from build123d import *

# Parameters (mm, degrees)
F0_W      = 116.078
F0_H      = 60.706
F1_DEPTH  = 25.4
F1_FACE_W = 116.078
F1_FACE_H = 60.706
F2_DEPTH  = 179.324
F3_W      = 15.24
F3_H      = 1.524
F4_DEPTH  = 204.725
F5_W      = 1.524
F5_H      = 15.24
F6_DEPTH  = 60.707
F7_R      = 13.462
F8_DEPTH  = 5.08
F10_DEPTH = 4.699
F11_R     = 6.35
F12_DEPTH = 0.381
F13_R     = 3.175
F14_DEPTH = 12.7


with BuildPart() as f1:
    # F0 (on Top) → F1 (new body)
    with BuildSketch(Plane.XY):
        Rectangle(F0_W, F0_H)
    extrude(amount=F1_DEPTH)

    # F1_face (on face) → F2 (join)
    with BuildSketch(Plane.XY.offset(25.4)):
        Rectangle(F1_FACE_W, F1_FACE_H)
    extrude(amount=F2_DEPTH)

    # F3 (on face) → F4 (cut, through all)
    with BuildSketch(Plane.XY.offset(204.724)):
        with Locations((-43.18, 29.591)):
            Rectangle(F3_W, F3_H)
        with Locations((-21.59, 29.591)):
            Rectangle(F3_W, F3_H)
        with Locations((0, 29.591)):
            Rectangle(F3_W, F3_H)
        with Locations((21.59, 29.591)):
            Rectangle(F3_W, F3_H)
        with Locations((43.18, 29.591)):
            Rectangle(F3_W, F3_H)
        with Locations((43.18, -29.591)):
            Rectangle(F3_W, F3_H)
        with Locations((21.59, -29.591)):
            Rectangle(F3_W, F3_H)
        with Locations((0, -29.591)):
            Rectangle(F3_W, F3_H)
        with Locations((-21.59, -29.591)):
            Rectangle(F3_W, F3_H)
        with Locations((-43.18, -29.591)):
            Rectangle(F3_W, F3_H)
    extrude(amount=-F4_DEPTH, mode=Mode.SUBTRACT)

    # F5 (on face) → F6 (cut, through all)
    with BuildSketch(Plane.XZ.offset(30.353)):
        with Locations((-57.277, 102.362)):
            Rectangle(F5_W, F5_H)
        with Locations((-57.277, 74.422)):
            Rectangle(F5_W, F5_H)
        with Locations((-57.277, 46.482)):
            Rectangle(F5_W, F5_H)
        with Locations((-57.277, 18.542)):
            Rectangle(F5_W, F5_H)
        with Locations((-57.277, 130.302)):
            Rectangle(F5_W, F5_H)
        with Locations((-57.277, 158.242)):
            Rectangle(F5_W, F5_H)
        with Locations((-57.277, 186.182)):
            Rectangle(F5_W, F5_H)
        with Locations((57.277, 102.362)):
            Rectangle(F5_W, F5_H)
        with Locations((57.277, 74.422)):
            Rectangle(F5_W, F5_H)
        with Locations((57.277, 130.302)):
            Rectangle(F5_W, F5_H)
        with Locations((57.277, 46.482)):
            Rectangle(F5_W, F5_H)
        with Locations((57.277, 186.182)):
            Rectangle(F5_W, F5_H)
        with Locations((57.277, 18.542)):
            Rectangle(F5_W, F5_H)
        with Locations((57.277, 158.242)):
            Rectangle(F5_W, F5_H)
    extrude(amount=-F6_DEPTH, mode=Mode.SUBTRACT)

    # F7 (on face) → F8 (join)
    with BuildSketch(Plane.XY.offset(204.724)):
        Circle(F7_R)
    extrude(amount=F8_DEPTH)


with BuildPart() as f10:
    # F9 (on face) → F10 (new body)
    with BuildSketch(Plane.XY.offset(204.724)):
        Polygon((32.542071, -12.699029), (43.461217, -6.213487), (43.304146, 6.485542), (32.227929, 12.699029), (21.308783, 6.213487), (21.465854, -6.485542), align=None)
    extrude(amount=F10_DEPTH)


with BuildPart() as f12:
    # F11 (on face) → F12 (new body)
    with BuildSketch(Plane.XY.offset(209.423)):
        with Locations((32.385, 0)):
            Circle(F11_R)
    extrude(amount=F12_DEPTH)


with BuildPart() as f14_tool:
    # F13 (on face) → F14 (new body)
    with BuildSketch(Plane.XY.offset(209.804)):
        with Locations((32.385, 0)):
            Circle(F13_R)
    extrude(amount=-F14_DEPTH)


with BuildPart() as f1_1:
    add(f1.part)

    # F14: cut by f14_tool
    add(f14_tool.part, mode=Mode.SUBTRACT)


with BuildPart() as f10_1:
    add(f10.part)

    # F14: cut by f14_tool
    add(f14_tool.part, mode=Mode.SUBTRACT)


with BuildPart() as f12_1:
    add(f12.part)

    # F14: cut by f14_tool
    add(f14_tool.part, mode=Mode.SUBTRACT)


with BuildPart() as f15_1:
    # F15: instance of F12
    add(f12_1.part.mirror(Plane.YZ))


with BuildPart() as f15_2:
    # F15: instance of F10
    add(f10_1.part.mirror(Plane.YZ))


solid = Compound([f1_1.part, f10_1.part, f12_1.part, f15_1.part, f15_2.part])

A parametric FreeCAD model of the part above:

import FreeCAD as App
import Part
import Sketcher
Q = App.Units.Quantity

doc = App.newDocument("Part")
body = doc.addObject("PartDesign::Body", "Body")

sketch1 = body.newObject("Sketcher::SketchObject", "Sketch")
sketch1.AttachmentSupport = (doc.getObject("XY_Plane"), [""])
sketch1.MapMode = "FlatFace"
sketch1.addGeometry(Part.LineSegment(App.Vector(-58, 30, 0), App.Vector(-58, -30, 0)), False)
sketch1.addGeometry(Part.LineSegment(App.Vector(-58, -30, 0), App.Vector(58, -30, 0)), False)
sketch1.addGeometry(Part.LineSegment(App.Vector(58, -30, 0), App.Vector(58, 30, 0)), False)
sketch1.addGeometry(Part.LineSegment(App.Vector(58, 30, 0), App.Vector(-58, 30, 0)), False)
sketch1.addConstraint(Sketcher.Constraint("Coincident", 0, 2, 1, 1))
sketch1.addConstraint(Sketcher.Constraint("Coincident", 1, 2, 2, 1))
sketch1.addConstraint(Sketcher.Constraint("Coincident", 2, 2, 3, 1))
sketch1.addConstraint(Sketcher.Constraint("Coincident", 3, 2, 0, 1))
sketch1.addConstraint(Sketcher.Constraint("Vertical", 0))
sketch1.addConstraint(Sketcher.Constraint("Horizontal", 1))
sketch1.addConstraint(Sketcher.Constraint("Vertical", 2))
sketch1.addConstraint(Sketcher.Constraint("Horizontal", 3))
sketch1.addConstraint(Sketcher.Constraint("Symmetric", 0, 2, 2, 2, -1, 1))
sketch1.addConstraint(Sketcher.Constraint("DistanceX", 1, 1, 1, 2, Q("4.57 in")))
sketch1.addConstraint(Sketcher.Constraint("DistanceY", 0, 2, 0, 1, Q("2.39 in")))
pad1 = body.newObject("PartDesign::Pad", "Pad")
pad1.Profile = sketch1
pad1.Length = Q("1 in")

sketch2 = body.newObject("Sketcher::SketchObject", "Sketch001")
sketch2.AttachmentSupport = (doc.getObject("XY_Plane"), [""])
sketch2.MapMode = "FlatFace"
sketch2.AttachmentOffset = App.Placement(App.Vector(0, 0, 1 * 25.4), App.Rotation())
sketch2.addGeometry(Part.LineSegment(App.Vector(-58, 30, 0), App.Vector(-58, -30, 0)), False)
sketch2.addGeometry(Part.LineSegment(App.Vector(-58, -30, 0), App.Vector(58, -30, 0)), False)
sketch2.addGeometry(Part.LineSegment(App.Vector(58, -30, 0), App.Vector(58, 30, 0)), False)
sketch2.addGeometry(Part.LineSegment(App.Vector(58, 30, 0), App.Vector(-58, 30, 0)), False)
sketch2.addConstraint(Sketcher.Constraint("Coincident", 0, 2, 1, 1))
sketch2.addConstraint(Sketcher.Constraint("Coincident", 1, 2, 2, 1))
sketch2.addConstraint(Sketcher.Constraint("Coincident", 2, 2, 3, 1))
sketch2.addConstraint(Sketcher.Constraint("Coincident", 3, 2, 0, 1))
sketch2.addConstraint(Sketcher.Constraint("Vertical", 0))
sketch2.addConstraint(Sketcher.Constraint("Horizontal", 1))
sketch2.addConstraint(Sketcher.Constraint("Vertical", 2))
sketch2.addConstraint(Sketcher.Constraint("Horizontal", 3))
sketch2.addConstraint(Sketcher.Constraint("Symmetric", 0, 2, 2, 2, -1, 1))
sketch2.addConstraint(Sketcher.Constraint("DistanceX", 1, 1, 1, 2, Q("4.57 in")))
sketch2.addConstraint(Sketcher.Constraint("DistanceY", 0, 2, 0, 1, Q("2.39 in")))
pad2 = body.newObject("PartDesign::Pad", "Pad001")
pad2.Profile = sketch2
pad2.Length = Q("7.06 in")

sketch3 = body.newObject("Sketcher::SketchObject", "Sketch002")
sketch3.AttachmentSupport = (doc.getObject("XY_Plane"), [""])
sketch3.MapMode = "FlatFace"
sketch3.AttachmentOffset = App.Placement(App.Vector(0, 0, 8.06 * 25.4), App.Rotation())
sketch3.addGeometry(Part.LineSegment(App.Vector(-50.8, 30.4, 0), App.Vector(-50.8, 28.8, 0)), False)
sketch3.addGeometry(Part.LineSegment(App.Vector(-50.8, 28.8, 0), App.Vector(-35.6, 28.8, 0)), False)
sketch3.addGeometry(Part.LineSegment(App.Vector(-35.6, 28.8, 0), App.Vector(-35.6, 30.4, 0)), False)
sketch3.addGeometry(Part.LineSegment(App.Vector(-35.6, 30.4, 0), App.Vector(-50.8, 30.4, 0)), False)
sketch3.addGeometry(Part.LineSegment(App.Vector(-29.2, 30.4, 0), App.Vector(-29.2, 28.8, 0)), False)
sketch3.addGeometry(Part.LineSegment(App.Vector(-29.2, 28.8, 0), App.Vector(-14, 28.8, 0)), False)
sketch3.addGeometry(Part.LineSegment(App.Vector(-14, 28.8, 0), App.Vector(-14, 30.4, 0)), False)
sketch3.addGeometry(Part.LineSegment(App.Vector(-14, 30.4, 0), App.Vector(-29.2, 30.4, 0)), False)
sketch3.addGeometry(Part.LineSegment(App.Vector(-7.6, 30.4, 0), App.Vector(-7.6, 28.8, 0)), False)
sketch3.addGeometry(Part.LineSegment(App.Vector(-7.6, 28.8, 0), App.Vector(7.6, 28.8, 0)), False)
sketch3.addGeometry(Part.LineSegment(App.Vector(7.6, 28.8, 0), App.Vector(7.6, 30.4, 0)), False)
sketch3.addGeometry(Part.LineSegment(App.Vector(7.6, 30.4, 0), App.Vector(-7.6, 30.4, 0)), False)
sketch3.addGeometry(Part.LineSegment(App.Vector(14, 30.4, 0), App.Vector(14, 28.8, 0)), False)
sketch3.addGeometry(Part.LineSegment(App.Vector(14, 28.8, 0), App.Vector(29.2, 28.8, 0)), False)
sketch3.addGeometry(Part.LineSegment(App.Vector(29.2, 28.8, 0), App.Vector(29.2, 30.4, 0)), False)
sketch3.addGeometry(Part.LineSegment(App.Vector(29.2, 30.4, 0), App.Vector(14, 30.4, 0)), False)
sketch3.addGeometry(Part.LineSegment(App.Vector(35.6, 30.4, 0), App.Vector(35.6, 28.8, 0)), False)
sketch3.addGeometry(Part.LineSegment(App.Vector(35.6, 28.8, 0), App.Vector(50.8, 28.8, 0)), False)
sketch3.addGeometry(Part.LineSegment(App.Vector(50.8, 28.8, 0), App.Vector(50.8, 30.4, 0)), False)
sketch3.addGeometry(Part.LineSegment(App.Vector(50.8, 30.4, 0), App.Vector(35.6, 30.4, 0)), False)
sketch3.addGeometry(Part.LineSegment(App.Vector(35.6, -28.8, 0), App.Vector(35.6, -30.4, 0)), False)
sketch3.addGeometry(Part.LineSegment(App.Vector(35.6, -30.4, 0), App.Vector(50.8, -30.4, 0)), False)
sketch3.addGeometry(Part.LineSegment(App.Vector(50.8, -30.4, 0), App.Vector(50.8, -28.8, 0)), False)
sketch3.addGeometry(Part.LineSegment(App.Vector(50.8, -28.8, 0), App.Vector(35.6, -28.8, 0)), False)
sketch3.addGeometry(Part.LineSegment(App.Vector(14, -28.8, 0), App.Vector(14, -30.4, 0)), False)
sketch3.addGeometry(Part.LineSegment(App.Vector(14, -30.4, 0), App.Vector(29.2, -30.4, 0)), False)
sketch3.addGeometry(Part.LineSegment(App.Vector(29.2, -30.4, 0), App.Vector(29.2, -28.8, 0)), False)
sketch3.addGeometry(Part.LineSegment(App.Vector(29.2, -28.8, 0), App.Vector(14, -28.8, 0)), False)
sketch3.addGeometry(Part.LineSegment(App.Vector(-7.6, -28.8, 0), App.Vector(-7.6, -30.4, 0)), False)
sketch3.addGeometry(Part.LineSegment(App.Vector(-7.6, -30.4, 0), App.Vector(7.6, -30.4, 0)), False)
sketch3.addGeometry(Part.LineSegment(App.Vector(7.6, -30.4, 0), App.Vector(7.6, -28.8, 0)), False)
sketch3.addGeometry(Part.LineSegment(App.Vector(7.6, -28.8, 0), App.Vector(-7.6, -28.8, 0)), False)
sketch3.addGeometry(Part.LineSegment(App.Vector(-29.2, -28.8, 0), App.Vector(-29.2, -30.4, 0)), False)
sketch3.addGeometry(Part.LineSegment(App.Vector(-29.2, -30.4, 0), App.Vector(-14, -30.4, 0)), False)
sketch3.addGeometry(Part.LineSegment(App.Vector(-14, -30.4, 0), App.Vector(-14, -28.8, 0)), False)
sketch3.addGeometry(Part.LineSegment(App.Vector(-14, -28.8, 0), App.Vector(-29.2, -28.8, 0)), False)
sketch3.addGeometry(Part.LineSegment(App.Vector(-50.8, -28.8, 0), App.Vector(-50.8, -30.4, 0)), False)
sketch3.addGeometry(Part.LineSegment(App.Vector(-50.8, -30.4, 0), App.Vector(-35.6, -30.4, 0)), False)
sketch3.addGeometry(Part.LineSegment(App.Vector(-35.6, -30.4, 0), App.Vector(-35.6, -28.8, 0)), False)
sketch3.addGeometry(Part.LineSegment(App.Vector(-35.6, -28.8, 0), App.Vector(-50.8, -28.8, 0)), False)
sketch3.addConstraint(Sketcher.Constraint("Coincident", 0, 2, 1, 1))
sketch3.addConstraint(Sketcher.Constraint("Coincident", 1, 2, 2, 1))
sketch3.addConstraint(Sketcher.Constraint("Coincident", 2, 2, 3, 1))
sketch3.addConstraint(Sketcher.Constraint("Coincident", 3, 2, 0, 1))
sketch3.addConstraint(Sketcher.Constraint("Coincident", 4, 2, 5, 1))
sketch3.addConstraint(Sketcher.Constraint("Coincident", 5, 2, 6, 1))
sketch3.addConstraint(Sketcher.Constraint("Coincident", 6, 2, 7, 1))
sketch3.addConstraint(Sketcher.Constraint("Coincident", 7, 2, 4, 1))
sketch3.addConstraint(Sketcher.Constraint("Coincident", 8, 2, 9, 1))
sketch3.addConstraint(Sketcher.Constraint("Coincident", 9, 2, 10, 1))
sketch3.addConstraint(Sketcher.Constraint("Coincident", 10, 2, 11, 1))
sketch3.addConstraint(Sketcher.Constraint("Coincident", 11, 2, 8, 1))
sketch3.addConstraint(Sketcher.Constraint("Coincident", 12, 2, 13, 1))
sketch3.addConstraint(Sketcher.Constraint("Coincident", 13, 2, 14, 1))
sketch3.addConstraint(Sketcher.Constraint("Coincident", 14, 2, 15, 1))
sketch3.addConstraint(Sketcher.Constraint("Coincident", 15, 2, 12, 1))
sketch3.addConstraint(Sketcher.Constraint("Coincident", 16, 2, 17, 1))
sketch3.addConstraint(Sketcher.Constraint("Coincident", 17, 2, 18, 1))
sketch3.addConstraint(Sketcher.Constraint("Coincident", 18, 2, 19, 1))
sketch3.addConstraint(Sketcher.Constraint("Coincident", 19, 2, 16, 1))
sketch3.addConstraint(Sketcher.Constraint("Coincident", 20, 2, 21, 1))
sketch3.addConstraint(Sketcher.Constraint("Coincident", 21, 2, 22, 1))
sketch3.addConstraint(Sketcher.Constraint("Coincident", 22, 2, 23, 1))
sketch3.addConstraint(Sketcher.Constraint("Coincident", 23, 2, 20, 1))
sketch3.addConstraint(Sketcher.Constraint("Coincident", 24, 2, 25, 1))
sketch3.addConstraint(Sketcher.Constraint("Coincident", 25, 2, 26, 1))
sketch3.addConstraint(Sketcher.Constraint("Coincident", 26, 2, 27, 1))
sketch3.addConstraint(Sketcher.Constraint("Coincident", 27, 2, 24, 1))
sketch3.addConstraint(Sketcher.Constraint("Coincident", 28, 2, 29, 1))
sketch3.addConstraint(Sketcher.Constraint("Coincident", 29, 2, 30, 1))
sketch3.addConstraint(Sketcher.Constraint("Coincident", 30, 2, 31, 1))
sketch3.addConstraint(Sketcher.Constraint("Coincident", 31, 2, 28, 1))
sketch3.addConstraint(Sketcher.Constraint("Coincident", 32, 2, 33, 1))
sketch3.addConstraint(Sketcher.Constraint("Coincident", 33, 2, 34, 1))
sketch3.addConstraint(Sketcher.Constraint("Coincident", 34, 2, 35, 1))
sketch3.addConstraint(Sketcher.Constraint("Coincident", 35, 2, 32, 1))
sketch3.addConstraint(Sketcher.Constraint("Coincident", 36, 2, 37, 1))
sketch3.addConstraint(Sketcher.Constraint("Coincident", 37, 2, 38, 1))
sketch3.addConstraint(Sketcher.Constraint("Coincident", 38, 2, 39, 1))
sketch3.addConstraint(Sketcher.Constraint("Coincident", 39, 2, 36, 1))
sketch3.addConstraint(Sketcher.Constraint("Vertical", 0))
sketch3.addConstraint(Sketcher.Constraint("Horizontal", 1))
sketch3.addConstraint(Sketcher.Constraint("Vertical", 2))
sketch3.addConstraint(Sketcher.Constraint("Horizontal", 3))
sketch3.addConstraint(Sketcher.Constraint("Vertical", 4))
sketch3.addConstraint(Sketcher.Constraint("Horizontal", 5))
sketch3.addConstraint(Sketcher.Constraint("Vertical", 6))
sketch3.addConstraint(Sketcher.Constraint("Horizontal", 7))
sketch3.addConstraint(Sketcher.Constraint("Vertical", 8))
sketch3.addConstraint(Sketcher.Constraint("Horizontal", 9))
sketch3.addConstraint(Sketcher.Constraint("Vertical", 10))
sketch3.addConstraint(Sketcher.Constraint("Horizontal", 11))
sketch3.addConstraint(Sketcher.Constraint("Vertical", 12))
sketch3.addConstraint(Sketcher.Constraint("Horizontal", 13))
sketch3.addConstraint(Sketcher.Constraint("Vertical", 14))
sketch3.addConstraint(Sketcher.Constraint("Horizontal", 15))
sketch3.addConstraint(Sketcher.Constraint("Vertical", 16))
sketch3.addConstraint(Sketcher.Constraint("Horizontal", 17))
sketch3.addConstraint(Sketcher.Constraint("Vertical", 18))
sketch3.addConstraint(Sketcher.Constraint("Horizontal", 19))
sketch3.addConstraint(Sketcher.Constraint("Vertical", 20))
sketch3.addConstraint(Sketcher.Constraint("Horizontal", 21))
sketch3.addConstraint(Sketcher.Constraint("Vertical", 22))
sketch3.addConstraint(Sketcher.Constraint("Horizontal", 23))
sketch3.addConstraint(Sketcher.Constraint("Vertical", 24))
sketch3.addConstraint(Sketcher.Constraint("Horizontal", 25))
sketch3.addConstraint(Sketcher.Constraint("Vertical", 26))
sketch3.addConstraint(Sketcher.Constraint("Horizontal", 27))
sketch3.addConstraint(Sketcher.Constraint("Vertical", 28))
sketch3.addConstraint(Sketcher.Constraint("Horizontal", 29))
sketch3.addConstraint(Sketcher.Constraint("Vertical", 30))
sketch3.addConstraint(Sketcher.Constraint("Horizontal", 31))
sketch3.addConstraint(Sketcher.Constraint("Vertical", 32))
sketch3.addConstraint(Sketcher.Constraint("Horizontal", 33))
sketch3.addConstraint(Sketcher.Constraint("Vertical", 34))
sketch3.addConstraint(Sketcher.Constraint("Horizontal", 35))
sketch3.addConstraint(Sketcher.Constraint("Vertical", 36))
sketch3.addConstraint(Sketcher.Constraint("Horizontal", 37))
sketch3.addConstraint(Sketcher.Constraint("Vertical", 38))
sketch3.addConstraint(Sketcher.Constraint("Horizontal", 39))
sketch3.addConstraint(Sketcher.Constraint("Symmetric", 2, 2, 20, 2, -1, 1))
sketch3.addConstraint(Sketcher.Constraint("Symmetric", 0, 2, 22, 2, -1, 1))
sketch3.addConstraint(Sketcher.Constraint("Symmetric", 6, 2, 24, 2, -1, 1))
sketch3.addConstraint(Sketcher.Constraint("Symmetric", 4, 2, 26, 2, -1, 1))
sketch3.addConstraint(Sketcher.Constraint("Symmetric", 10, 2, 28, 2, -1, 1))
sketch3.addConstraint(Sketcher.Constraint("Symmetric", 8, 2, 30, 2, -1, 1))
sketch3.addConstraint(Sketcher.Constraint("Symmetric", 14, 2, 32, 2, -1, 1))
sketch3.addConstraint(Sketcher.Constraint("Symmetric", 12, 2, 34, 2, -1, 1))
sketch3.addConstraint(Sketcher.Constraint("Symmetric", 18, 2, 36, 2, -1, 1))
sketch3.addConstraint(Sketcher.Constraint("Symmetric", 16, 2, 38, 2, -1, 1))
sketch3.addConstraint(Sketcher.Constraint("Symmetric", 5, 2, 12, 2, -2))
sketch3.addConstraint(Sketcher.Constraint("Symmetric", 7, 2, 14, 2, -2))
sketch3.addConstraint(Sketcher.Constraint("Symmetric", 1, 2, 16, 2, -2))
sketch3.addConstraint(Sketcher.Constraint("Symmetric", 3, 2, 18, 2, -2))
sketch3.addConstraint(Sketcher.Constraint("Horizontal", 1, 2, 4, 2))
sketch3.addConstraint(Sketcher.Constraint("Horizontal", 3, 2, 6, 2))
sketch3.addConstraint(Sketcher.Constraint("Horizontal", 5, 2, 8, 2))
sketch3.addConstraint(Sketcher.Constraint("Horizontal", 7, 2, 10, 2))
sketch3.addConstraint(Sketcher.Constraint("Vertical", 11, 2, 28, 2))
sketch3.addConstraint(Sketcher.Constraint("Equal", 3, 5))
sketch3.addConstraint(Sketcher.Constraint("Equal", 7, 9))
sketch3.addConstraint(Sketcher.Constraint("DistanceX", 1, 1, 1, 2, Q("0.6 in")))
sketch3.addConstraint(Sketcher.Constraint("DistanceX", 0, 2, -1, 1, Q("2 in")))
sketch3.addConstraint(Sketcher.Constraint("DistanceY", 0, 2, 0, 1, Q("0.06 in")))
sketch3.addConstraint(Sketcher.Constraint("DistanceX", 5, 2, 12, 2, Q("1.1 in")))
sketch3.addConstraint(Sketcher.Constraint("DistanceY", 20, 2, 16, 2, Q("2.33 in")))
pocket1 = body.newObject("PartDesign::Pocket", "Pocket")
pocket1.Profile = sketch3
pocket1.Type = "ThroughAll"

sketch4 = body.newObject("Sketcher::SketchObject", "Sketch003")
sketch4.AttachmentSupport = (doc.getObject("XZ_Plane"), [""])
sketch4.MapMode = "FlatFace"
sketch4.AttachmentOffset = App.Placement(App.Vector(0, 0, 1.195 * 25.4), App.Rotation())
sketch4.addGeometry(Part.LineSegment(App.Vector(-58, 110, 0), App.Vector(-58, 94.7, 0)), False)
sketch4.addGeometry(Part.LineSegment(App.Vector(-58, 94.7, 0), App.Vector(-56.5, 94.7, 0)), False)
sketch4.addGeometry(Part.LineSegment(App.Vector(-56.5, 94.7, 0), App.Vector(-56.5, 110, 0)), False)
sketch4.addGeometry(Part.LineSegment(App.Vector(-56.5, 110, 0), App.Vector(-58, 110, 0)), False)
sketch4.addGeometry(Part.LineSegment(App.Vector(-58, 82, 0), App.Vector(-58, 66.8, 0)), False)
sketch4.addGeometry(Part.LineSegment(App.Vector(-58, 66.8, 0), App.Vector(-56.5, 66.8, 0)), False)
sketch4.addGeometry(Part.LineSegment(App.Vector(-56.5, 66.8, 0), App.Vector(-56.5, 82, 0)), False)
sketch4.addGeometry(Part.LineSegment(App.Vector(-56.5, 82, 0), App.Vector(-58, 82, 0)), False)
sketch4.addGeometry(Part.LineSegment(App.Vector(-58, 54.1, 0), App.Vector(-58, 38.9, 0)), False)
sketch4.addGeometry(Part.LineSegment(App.Vector(-58, 38.9, 0), App.Vector(-56.5, 38.9, 0)), False)
sketch4.addGeometry(Part.LineSegment(App.Vector(-56.5, 38.9, 0), App.Vector(-56.5, 54.1, 0)), False)
sketch4.addGeometry(Part.LineSegment(App.Vector(-56.5, 54.1, 0), App.Vector(-58, 54.1, 0)), False)
sketch4.addGeometry(Part.LineSegment(App.Vector(-58, 26.2, 0), App.Vector(-58, 10.9, 0)), False)
sketch4.addGeometry(Part.LineSegment(App.Vector(-58, 10.9, 0), App.Vector(-56.5, 10.9, 0)), False)
sketch4.addGeometry(Part.LineSegment(App.Vector(-56.5, 10.9, 0), App.Vector(-56.5, 26.2, 0)), False)
sketch4.addGeometry(Part.LineSegment(App.Vector(-56.5, 26.2, 0), App.Vector(-58, 26.2, 0)), False)
sketch4.addGeometry(Part.LineSegment(App.Vector(-58, 137.9, 0), App.Vector(-58, 122.7, 0)), False)
sketch4.addGeometry(Part.LineSegment(App.Vector(-58, 122.7, 0), App.Vector(-56.5, 122.7, 0)), False)
sketch4.addGeometry(Part.LineSegment(App.Vector(-56.5, 122.7, 0), App.Vector(-56.5, 137.9, 0)), False)
sketch4.addGeometry(Part.LineSegment(App.Vector(-56.5, 137.9, 0), App.Vector(-58, 137.9, 0)), False)
sketch4.addGeometry(Part.LineSegment(App.Vector(-58, 165.9, 0), App.Vector(-58, 150.6, 0)), False)
sketch4.addGeometry(Part.LineSegment(App.Vector(-58, 150.6, 0), App.Vector(-56.5, 150.6, 0)), False)
sketch4.addGeometry(Part.LineSegment(App.Vector(-56.5, 150.6, 0), App.Vector(-56.5, 165.9, 0)), False)
sketch4.addGeometry(Part.LineSegment(App.Vector(-56.5, 165.9, 0), App.Vector(-58, 165.9, 0)), False)
sketch4.addGeometry(Part.LineSegment(App.Vector(-58, 193.8, 0), App.Vector(-58, 178.6, 0)), False)
sketch4.addGeometry(Part.LineSegment(App.Vector(-58, 178.6, 0), App.Vector(-56.5, 178.6, 0)), False)
sketch4.addGeometry(Part.LineSegment(App.Vector(-56.5, 178.6, 0), App.Vector(-56.5, 193.8, 0)), False)
sketch4.addGeometry(Part.LineSegment(App.Vector(-56.5, 193.8, 0), App.Vector(-58, 193.8, 0)), False)
sketch4.addGeometry(Part.LineSegment(App.Vector(56.5, 110, 0), App.Vector(56.5, 94.7, 0)), False)
sketch4.addGeometry(Part.LineSegment(App.Vector(56.5, 94.7, 0), App.Vector(58, 94.7, 0)), False)
sketch4.addGeometry(Part.LineSegment(App.Vector(58, 94.7, 0), App.Vector(58, 110, 0)), False)
sketch4.addGeometry(Part.LineSegment(App.Vector(58, 110, 0), App.Vector(56.5, 110, 0)), False)
sketch4.addGeometry(Part.LineSegment(App.Vector(56.5, 82, 0), App.Vector(56.5, 66.8, 0)), False)
sketch4.addGeometry(Part.LineSegment(App.Vector(56.5, 66.8, 0), App.Vector(58, 66.8, 0)), False)
sketch4.addGeometry(Part.LineSegment(App.Vector(58, 66.8, 0), App.Vector(58, 82, 0)), False)
sketch4.addGeometry(Part.LineSegment(App.Vector(58, 82, 0), App.Vector(56.5, 82, 0)), False)
sketch4.addGeometry(Part.LineSegment(App.Vector(56.5, 137.9, 0), App.Vector(56.5, 122.7, 0)), False)
sketch4.addGeometry(Part.LineSegment(App.Vector(56.5, 122.7, 0), App.Vector(58, 122.7, 0)), False)
sketch4.addGeometry(Part.LineSegment(App.Vector(58, 122.7, 0), App.Vector(58, 137.9, 0)), False)
sketch4.addGeometry(Part.LineSegment(App.Vector(58, 137.9, 0), App.Vector(56.5, 137.9, 0)), False)
sketch4.addGeometry(Part.LineSegment(App.Vector(56.5, 54.1, 0), App.Vector(56.5, 38.9, 0)), False)
sketch4.addGeometry(Part.LineSegment(App.Vector(56.5, 38.9, 0), App.Vector(58, 38.9, 0)), False)
sketch4.addGeometry(Part.LineSegment(App.Vector(58, 38.9, 0), App.Vector(58, 54.1, 0)), False)
sketch4.addGeometry(Part.LineSegment(App.Vector(58, 54.1, 0), App.Vector(56.5, 54.1, 0)), False)
sketch4.addGeometry(Part.LineSegment(App.Vector(56.5, 193.8, 0), App.Vector(56.5, 178.6, 0)), False)
sketch4.addGeometry(Part.LineSegment(App.Vector(56.5, 178.6, 0), App.Vector(58, 178.6, 0)), False)
sketch4.addGeometry(Part.LineSegment(App.Vector(58, 178.6, 0), App.Vector(58, 193.8, 0)), False)
sketch4.addGeometry(Part.LineSegment(App.Vector(58, 193.8, 0), App.Vector(56.5, 193.8, 0)), False)
sketch4.addGeometry(Part.LineSegment(App.Vector(56.5, 26.2, 0), App.Vector(56.5, 10.9, 0)), False)
sketch4.addGeometry(Part.LineSegment(App.Vector(56.5, 10.9, 0), App.Vector(58, 10.9, 0)), False)
sketch4.addGeometry(Part.LineSegment(App.Vector(58, 10.9, 0), App.Vector(58, 26.2, 0)), False)
sketch4.addGeometry(Part.LineSegment(App.Vector(58, 26.2, 0), App.Vector(56.5, 26.2, 0)), False)
sketch4.addGeometry(Part.LineSegment(App.Vector(56.5, 165.9, 0), App.Vector(56.5, 150.6, 0)), False)
sketch4.addGeometry(Part.LineSegment(App.Vector(56.5, 150.6, 0), App.Vector(58, 150.6, 0)), False)
sketch4.addGeometry(Part.LineSegment(App.Vector(58, 150.6, 0), App.Vector(58, 165.9, 0)), False)
sketch4.addGeometry(Part.LineSegment(App.Vector(58, 165.9, 0), App.Vector(56.5, 165.9, 0)), False)
sketch4.addConstraint(Sketcher.Constraint("Coincident", 0, 2, 1, 1))
sketch4.addConstraint(Sketcher.Constraint("Coincident", 1, 2, 2, 1))
sketch4.addConstraint(Sketcher.Constraint("Coincident", 2, 2, 3, 1))
sketch4.addConstraint(Sketcher.Constraint("Coincident", 3, 2, 0, 1))
sketch4.addConstraint(Sketcher.Constraint("Coincident", 4, 2, 5, 1))
sketch4.addConstraint(Sketcher.Constraint("Coincident", 5, 2, 6, 1))
sketch4.addConstraint(Sketcher.Constraint("Coincident", 6, 2, 7, 1))
sketch4.addConstraint(Sketcher.Constraint("Coincident", 7, 2, 4, 1))
sketch4.addConstraint(Sketcher.Constraint("Coincident", 8, 2, 9, 1))
sketch4.addConstraint(Sketcher.Constraint("Coincident", 9, 2, 10, 1))
sketch4.addConstraint(Sketcher.Constraint("Coincident", 10, 2, 11, 1))
sketch4.addConstraint(Sketcher.Constraint("Coincident", 11, 2, 8, 1))
sketch4.addConstraint(Sketcher.Constraint("Coincident", 12, 2, 13, 1))
sketch4.addConstraint(Sketcher.Constraint("Coincident", 13, 2, 14, 1))
sketch4.addConstraint(Sketcher.Constraint("Coincident", 14, 2, 15, 1))
sketch4.addConstraint(Sketcher.Constraint("Coincident", 15, 2, 12, 1))
sketch4.addConstraint(Sketcher.Constraint("Coincident", 16, 2, 17, 1))
sketch4.addConstraint(Sketcher.Constraint("Coincident", 17, 2, 18, 1))
sketch4.addConstraint(Sketcher.Constraint("Coincident", 18, 2, 19, 1))
sketch4.addConstraint(Sketcher.Constraint("Coincident", 19, 2, 16, 1))
sketch4.addConstraint(Sketcher.Constraint("Coincident", 20, 2, 21, 1))
sketch4.addConstraint(Sketcher.Constraint("Coincident", 21, 2, 22, 1))
sketch4.addConstraint(Sketcher.Constraint("Coincident", 22, 2, 23, 1))
sketch4.addConstraint(Sketcher.Constraint("Coincident", 23, 2, 20, 1))
sketch4.addConstraint(Sketcher.Constraint("Coincident", 24, 2, 25, 1))
sketch4.addConstraint(Sketcher.Constraint("Coincident", 25, 2, 26, 1))
sketch4.addConstraint(Sketcher.Constraint("Coincident", 26, 2, 27, 1))
sketch4.addConstraint(Sketcher.Constraint("Coincident", 27, 2, 24, 1))
sketch4.addConstraint(Sketcher.Constraint("Coincident", 28, 2, 29, 1))
sketch4.addConstraint(Sketcher.Constraint("Coincident", 29, 2, 30, 1))
sketch4.addConstraint(Sketcher.Constraint("Coincident", 30, 2, 31, 1))
sketch4.addConstraint(Sketcher.Constraint("Coincident", 31, 2, 28, 1))
sketch4.addConstraint(Sketcher.Constraint("Coincident", 32, 2, 33, 1))
sketch4.addConstraint(Sketcher.Constraint("Coincident", 33, 2, 34, 1))
sketch4.addConstraint(Sketcher.Constraint("Coincident", 34, 2, 35, 1))
sketch4.addConstraint(Sketcher.Constraint("Coincident", 35, 2, 32, 1))
sketch4.addConstraint(Sketcher.Constraint("Coincident", 36, 2, 37, 1))
sketch4.addConstraint(Sketcher.Constraint("Coincident", 37, 2, 38, 1))
sketch4.addConstraint(Sketcher.Constraint("Coincident", 38, 2, 39, 1))
sketch4.addConstraint(Sketcher.Constraint("Coincident", 39, 2, 36, 1))
sketch4.addConstraint(Sketcher.Constraint("Coincident", 40, 2, 41, 1))
sketch4.addConstraint(Sketcher.Constraint("Coincident", 41, 2, 42, 1))
sketch4.addConstraint(Sketcher.Constraint("Coincident", 42, 2, 43, 1))
sketch4.addConstraint(Sketcher.Constraint("Coincident", 43, 2, 40, 1))
sketch4.addConstraint(Sketcher.Constraint("Coincident", 44, 2, 45, 1))
sketch4.addConstraint(Sketcher.Constraint("Coincident", 45, 2, 46, 1))
sketch4.addConstraint(Sketcher.Constraint("Coincident", 46, 2, 47, 1))
sketch4.addConstraint(Sketcher.Constraint("Coincident", 47, 2, 44, 1))
sketch4.addConstraint(Sketcher.Constraint("Coincident", 48, 2, 49, 1))
sketch4.addConstraint(Sketcher.Constraint("Coincident", 49, 2, 50, 1))
sketch4.addConstraint(Sketcher.Constraint("Coincident", 50, 2, 51, 1))
sketch4.addConstraint(Sketcher.Constraint("Coincident", 51, 2, 48, 1))
sketch4.addConstraint(Sketcher.Constraint("Coincident", 52, 2, 53, 1))
sketch4.addConstraint(Sketcher.Constraint("Coincident", 53, 2, 54, 1))
sketch4.addConstraint(Sketcher.Constraint("Coincident", 54, 2, 55, 1))
sketch4.addConstraint(Sketcher.Constraint("Coincident", 55, 2, 52, 1))
sketch4.addConstraint(Sketcher.Constraint("Vertical", 0))
sketch4.addConstraint(Sketcher.Constraint("Horizontal", 1))
sketch4.addConstraint(Sketcher.Constraint("Vertical", 2))
sketch4.addConstraint(Sketcher.Constraint("Horizontal", 3))
sketch4.addConstraint(Sketcher.Constraint("Vertical", 4))
sketch4.addConstraint(Sketcher.Constraint("Horizontal", 5))
sketch4.addConstraint(Sketcher.Constraint("Vertical", 6))
sketch4.addConstraint(Sketcher.Constraint("Horizontal", 7))
sketch4.addConstraint(Sketcher.Constraint("Vertical", 8))
sketch4.addConstraint(Sketcher.Constraint("Horizontal", 9))
sketch4.addConstraint(Sketcher.Constraint("Vertical", 10))
sketch4.addConstraint(Sketcher.Constraint("Horizontal", 11))
sketch4.addConstraint(Sketcher.Constraint("Vertical", 12))
sketch4.addConstraint(Sketcher.Constraint("Horizontal", 13))
sketch4.addConstraint(Sketcher.Constraint("Vertical", 14))
sketch4.addConstraint(Sketcher.Constraint("Horizontal", 15))
sketch4.addConstraint(Sketcher.Constraint("Vertical", 16))
sketch4.addConstraint(Sketcher.Constraint("Horizontal", 17))
sketch4.addConstraint(Sketcher.Constraint("Vertical", 18))
sketch4.addConstraint(Sketcher.Constraint("Horizontal", 19))
sketch4.addConstraint(Sketcher.Constraint("Vertical", 20))
sketch4.addConstraint(Sketcher.Constraint("Horizontal", 21))
sketch4.addConstraint(Sketcher.Constraint("Vertical", 22))
sketch4.addConstraint(Sketcher.Constraint("Horizontal", 23))
sketch4.addConstraint(Sketcher.Constraint("Vertical", 24))
sketch4.addConstraint(Sketcher.Constraint("Horizontal", 25))
sketch4.addConstraint(Sketcher.Constraint("Vertical", 26))
sketch4.addConstraint(Sketcher.Constraint("Horizontal", 27))
sketch4.addConstraint(Sketcher.Constraint("Vertical", 28))
sketch4.addConstraint(Sketcher.Constraint("Horizontal", 29))
sketch4.addConstraint(Sketcher.Constraint("Vertical", 30))
sketch4.addConstraint(Sketcher.Constraint("Horizontal", 31))
sketch4.addConstraint(Sketcher.Constraint("Vertical", 32))
sketch4.addConstraint(Sketcher.Constraint("Horizontal", 33))
sketch4.addConstraint(Sketcher.Constraint("Vertical", 34))
sketch4.addConstraint(Sketcher.Constraint("Horizontal", 35))
sketch4.addConstraint(Sketcher.Constraint("Vertical", 36))
sketch4.addConstraint(Sketcher.Constraint("Horizontal", 37))
sketch4.addConstraint(Sketcher.Constraint("Vertical", 38))
sketch4.addConstraint(Sketcher.Constraint("Horizontal", 39))
sketch4.addConstraint(Sketcher.Constraint("Vertical", 40))
sketch4.addConstraint(Sketcher.Constraint("Horizontal", 41))
sketch4.addConstraint(Sketcher.Constraint("Vertical", 42))
sketch4.addConstraint(Sketcher.Constraint("Horizontal", 43))
sketch4.addConstraint(Sketcher.Constraint("Vertical", 44))
sketch4.addConstraint(Sketcher.Constraint("Horizontal", 45))
sketch4.addConstraint(Sketcher.Constraint("Vertical", 46))
sketch4.addConstraint(Sketcher.Constraint("Horizontal", 47))
sketch4.addConstraint(Sketcher.Constraint("Vertical", 48))
sketch4.addConstraint(Sketcher.Constraint("Horizontal", 49))
sketch4.addConstraint(Sketcher.Constraint("Vertical", 50))
sketch4.addConstraint(Sketcher.Constraint("Horizontal", 51))
sketch4.addConstraint(Sketcher.Constraint("Vertical", 52))
sketch4.addConstraint(Sketcher.Constraint("Horizontal", 53))
sketch4.addConstraint(Sketcher.Constraint("Vertical", 54))
sketch4.addConstraint(Sketcher.Constraint("Horizontal", 55))
sketch4.addConstraint(Sketcher.Constraint("Symmetric", 1, 2, 28, 2, -2))
sketch4.addConstraint(Sketcher.Constraint("Symmetric", 3, 2, 30, 2, -2))
sketch4.addConstraint(Sketcher.Constraint("Symmetric", 5, 2, 32, 2, -2))
sketch4.addConstraint(Sketcher.Constraint("Symmetric", 7, 2, 34, 2, -2))
sketch4.addConstraint(Sketcher.Constraint("Symmetric", 17, 2, 36, 2, -2))
sketch4.addConstraint(Sketcher.Constraint("Symmetric", 19, 2, 38, 2, -2))
sketch4.addConstraint(Sketcher.Constraint("Symmetric", 9, 2, 40, 2, -2))
sketch4.addConstraint(Sketcher.Constraint("Symmetric", 11, 2, 42, 2, -2))
sketch4.addConstraint(Sketcher.Constraint("Symmetric", 25, 2, 44, 2, -2))
sketch4.addConstraint(Sketcher.Constraint("Symmetric", 27, 2, 46, 2, -2))
sketch4.addConstraint(Sketcher.Constraint("Symmetric", 13, 2, 48, 2, -2))
sketch4.addConstraint(Sketcher.Constraint("Symmetric", 15, 2, 50, 2, -2))
sketch4.addConstraint(Sketcher.Constraint("Symmetric", 21, 2, 52, 2, -2))
sketch4.addConstraint(Sketcher.Constraint("Symmetric", 23, 2, 54, 2, -2))
sketch4.addConstraint(Sketcher.Constraint("Vertical", 3, 2, 4, 2))
sketch4.addConstraint(Sketcher.Constraint("Vertical", 2, 2, 5, 2))
sketch4.addConstraint(Sketcher.Constraint("Vertical", 7, 2, 8, 2))
sketch4.addConstraint(Sketcher.Constraint("Vertical", 6, 2, 9, 2))
sketch4.addConstraint(Sketcher.Constraint("Vertical", 11, 2, 12, 2))
sketch4.addConstraint(Sketcher.Constraint("Vertical", 10, 2, 13, 2))
sketch4.addConstraint(Sketcher.Constraint("Vertical", 15, 2, 16, 2))
sketch4.addConstraint(Sketcher.Constraint("Vertical", 14, 2, 17, 2))
sketch4.addConstraint(Sketcher.Constraint("Vertical", 19, 2, 20, 2))
sketch4.addConstraint(Sketcher.Constraint("Vertical", 18, 2, 21, 2))
sketch4.addConstraint(Sketcher.Constraint("Vertical", 23, 2, 24, 2))
sketch4.addConstraint(Sketcher.Constraint("Vertical", 22, 2, 25, 2))
sketch4.addConstraint(Sketcher.Constraint("Equal", 2, 4))
sketch4.addConstraint(Sketcher.Constraint("Equal", 6, 8))
sketch4.addConstraint(Sketcher.Constraint("Equal", 10, 12))
sketch4.addConstraint(Sketcher.Constraint("Equal", 14, 16))
sketch4.addConstraint(Sketcher.Constraint("Equal", 18, 20))
sketch4.addConstraint(Sketcher.Constraint("Equal", 22, 24))
sketch4.addConstraint(Sketcher.Constraint("DistanceY", 0, 2, 0, 1, Q("0.6 in")))
sketch4.addConstraint(Sketcher.Constraint("DistanceX", 1, 1, 1, 2, Q("0.06 in")))
sketch4.addConstraint(Sketcher.Constraint("DistanceY", 4, 2, 0, 2, Q("1.1 in")))
sketch4.addConstraint(Sketcher.Constraint("DistanceY", 8, 2, 4, 2, Q("1.1 in")))
sketch4.addConstraint(Sketcher.Constraint("DistanceY", 12, 2, 8, 2, Q("1.1 in")))
sketch4.addConstraint(Sketcher.Constraint("DistanceY", 3, 2, 16, 2, Q("0.5 in")))
sketch4.addConstraint(Sketcher.Constraint("DistanceY", 19, 2, 20, 2, Q("0.5 in")))
sketch4.addConstraint(Sketcher.Constraint("DistanceY", 23, 2, 24, 2, Q("0.5 in")))
sketch4.addConstraint(Sketcher.Constraint("DistanceY", -1, 1, 0, 2, Q("3.73 in")))
sketch4.addConstraint(Sketcher.Constraint("DistanceX", 1, 2, 28, 2, Q("4.45 in")))
pocket2 = body.newObject("PartDesign::Pocket", "Pocket001")
pocket2.Profile = sketch4
pocket2.Type = "ThroughAll"

sketch5 = body.newObject("Sketcher::SketchObject", "Sketch004")
sketch5.AttachmentSupport = (doc.getObject("XY_Plane"), [""])
sketch5.MapMode = "FlatFace"
sketch5.AttachmentOffset = App.Placement(App.Vector(0, 0, 8.06 * 25.4), App.Rotation())
sketch5.addGeometry(Part.Circle(App.Vector(0, 0, 0), App.Vector(0, 0, 1), 13), False)
sketch5.addConstraint(Sketcher.Constraint("Coincident", 0, 3, -1, 1))
sketch5.addConstraint(Sketcher.Constraint("Diameter", 0, Q("1.06 in")))
pad3 = body.newObject("PartDesign::Pad", "Pad002")
pad3.Profile = sketch5
pad3.Length = Q("0.2 in")
body2 = doc.addObject("PartDesign::Body", "Body001")

sketch6 = body2.newObject("Sketcher::SketchObject", "Sketch005")
sketch6.AttachmentSupport = (doc.getObject("XY_Plane001"), [""])
sketch6.MapMode = "FlatFace"
sketch6.AttachmentOffset = App.Placement(App.Vector(0, 0, 8.06 * 25.4), App.Rotation())
sketch6.addGeometry(Part.LineSegment(App.Vector(33, -13, 0), App.Vector(43, -6, 0)), False)
sketch6.addGeometry(Part.LineSegment(App.Vector(43, -6, 0), App.Vector(43, 6, 0)), False)
sketch6.addGeometry(Part.LineSegment(App.Vector(43, 6, 0), App.Vector(32, 13, 0)), False)
sketch6.addGeometry(Part.LineSegment(App.Vector(32, 13, 0), App.Vector(21, 6, 0)), False)
sketch6.addGeometry(Part.LineSegment(App.Vector(21, 6, 0), App.Vector(21, -6, 0)), False)
sketch6.addGeometry(Part.LineSegment(App.Vector(21, -6, 0), App.Vector(33, -13, 0)), False)
sketch6.addConstraint(Sketcher.Constraint("Coincident", 0, 2, 1, 1))
sketch6.addConstraint(Sketcher.Constraint("Coincident", 1, 2, 2, 1))
sketch6.addConstraint(Sketcher.Constraint("Coincident", 2, 2, 3, 1))
sketch6.addConstraint(Sketcher.Constraint("Coincident", 3, 2, 4, 1))
sketch6.addConstraint(Sketcher.Constraint("Coincident", 4, 2, 5, 1))
sketch6.addConstraint(Sketcher.Constraint("Coincident", 5, 2, 0, 1))
sketch6.addConstraint(Sketcher.Constraint("Parallel", 0, 3))
sketch6.addConstraint(Sketcher.Constraint("Parallel", 1, 4))
sketch6.addConstraint(Sketcher.Constraint("Parallel", 2, 5))
sketch6.addConstraint(Sketcher.Constraint("Equal", 0, 1))
sketch6.addConstraint(Sketcher.Constraint("Equal", 1, 2))
sketch6.addConstraint(Sketcher.Constraint("Equal", 2, 3))
sketch6.addConstraint(Sketcher.Constraint("Distance", 0, Q("0.5 in")))
sketch6.addConstraint(Sketcher.Constraint("DistanceY", -1, 1, 1, 2, Q("6.485542 mm")))
sketch6.addConstraint(Sketcher.Constraint("DistanceX", -1, 1, 2, 2, Q("32.227929 mm")))
sketch6.addConstraint(Sketcher.Constraint("DistanceY", -1, 1, 2, 2, Q("12.699029 mm")))
sketch6.addConstraint(Sketcher.Constraint("DistanceY", 4, 2, -1, 1, Q("6.485542 mm")))
sketch6.addConstraint(Sketcher.Constraint("DistanceX", -1, 1, 5, 2, Q("32.542071 mm")))
pad4 = body2.newObject("PartDesign::Pad", "Pad003")
pad4.Profile = sketch6
pad4.Length = Q("0.185 in")
body3 = doc.addObject("PartDesign::Body", "Body002")

sketch7 = body3.newObject("Sketcher::SketchObject", "Sketch006")
sketch7.AttachmentSupport = (doc.getObject("XY_Plane002"), [""])
sketch7.MapMode = "FlatFace"
sketch7.AttachmentOffset = App.Placement(App.Vector(0, 0, 8.245 * 25.4), App.Rotation())
sketch7.addGeometry(Part.Circle(App.Vector(32, 0, 0), App.Vector(0, 0, 1), 6), False)
sketch7.addConstraint(Sketcher.Constraint("PointOnObject", 0, 3, -1))
sketch7.addConstraint(Sketcher.Constraint("Diameter", 0, Q("0.5 in")))
sketch7.addConstraint(Sketcher.Constraint("DistanceX", -1, 1, 0, 3, Q("1.275 in")))
pad5 = body3.newObject("PartDesign::Pad", "Pad004")
pad5.Profile = sketch7
pad5.Length = Q("0.015 in")
body4 = doc.addObject("PartDesign::Body", "Body003")

sketch8 = body4.newObject("Sketcher::SketchObject", "Sketch007")
sketch8.AttachmentSupport = (doc.getObject("XY_Plane003"), [""])
sketch8.MapMode = "FlatFace"
sketch8.AttachmentOffset = App.Placement(App.Vector(0, 0, 8.26 * 25.4), App.Rotation())
sketch8.addGeometry(Part.Circle(App.Vector(32.4, 0, 0), App.Vector(0, 0, 1), 3.2), False)
sketch8.addConstraint(Sketcher.Constraint("PointOnObject", 0, 3, -1))
sketch8.addConstraint(Sketcher.Constraint("Diameter", 0, Q("0.25 in")))
sketch8.addConstraint(Sketcher.Constraint("DistanceX", -1, 1, 0, 3, Q("1.275 in")))
pad6 = body4.newObject("PartDesign::Pad", "Pad005")
pad6.Profile = sketch8
pad6.Length = Q("0.5 in")
pad6.Reversed = True
doc.recompute()

body5 = doc.addObject("PartDesign::Body", "Body004")
body5.BaseFeature = body4
boolean = body.newObject("PartDesign::Boolean", "Boolean")
boolean.Type = "Cut"
boolean.addObjects([body5])
doc.recompute()

body6 = doc.addObject("PartDesign::Body", "Body005")
body6.BaseFeature = body4
boolean2 = body2.newObject("PartDesign::Boolean", "Boolean001")
boolean2.Type = "Cut"
boolean2.addObjects([body6])
doc.recompute()

boolean3 = body3.newObject("PartDesign::Boolean", "Boolean002")
boolean3.Type = "Cut"
boolean3.addObjects([body4])
body7 = doc.addObject("PartDesign::Body", "Body006")
doc.recompute()

mirroring = doc.addObject("Part::Mirroring", "Mirroring")
mirroring.Source = body3
mirroring.Base = App.Vector(0, 0, 0)
mirroring.Normal = App.Vector(1, 0, 0)
body7.BaseFeature = mirroring
doc.recompute()
body8 = doc.addObject("PartDesign::Body", "Body007")
doc.recompute()

mirroring2 = doc.addObject("Part::Mirroring", "Mirroring001")
mirroring2.Source = body2
mirroring2.Base = App.Vector(0, 0, 0)
mirroring2.Normal = App.Vector(1, 0, 0)
body8.BaseFeature = mirroring2
doc.recompute()
mirroring.Visibility = False
mirroring2.Visibility = False

doc.recompute()
